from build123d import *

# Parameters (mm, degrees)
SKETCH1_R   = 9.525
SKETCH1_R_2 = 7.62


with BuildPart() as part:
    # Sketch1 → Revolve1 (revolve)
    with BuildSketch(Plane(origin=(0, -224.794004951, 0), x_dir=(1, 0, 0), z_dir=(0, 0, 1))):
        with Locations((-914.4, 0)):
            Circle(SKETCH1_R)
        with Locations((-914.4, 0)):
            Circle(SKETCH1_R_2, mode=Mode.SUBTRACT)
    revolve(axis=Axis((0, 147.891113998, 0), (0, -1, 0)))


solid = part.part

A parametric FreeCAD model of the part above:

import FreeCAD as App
import Part
import Sketcher
Q = App.Units.Quantity

doc = App.newDocument("Part")
body = doc.addObject("PartDesign::Body", "Body")

# Sketch on XY plane
sketch1 = doc.addObject("Sketcher::SketchObject", "Sketch")
body.addObject(sketch1)
sketch1.AttachmentSupport = (doc.XY_Plane, [""])
sketch1.MapMode = "FlatFace"
sketch1.addGeometry(Part.Circle(App.Vector(-914, -225, 0), App.Vector(0, 0, 1), 10), False)
sketch1.addGeometry(Part.Circle(App.Vector(-914, -225, 0), App.Vector(0, 0, 1), 8), False)
sketch1.addConstraint(Sketcher.Constraint("Coincident", 1, 3, 0, 3))
sketch1.addConstraint(Sketcher.Constraint("Diameter", 1, Q("0.6 in")))
sketch1.addConstraint(Sketcher.Constraint("Diameter", 0, Q("0.75 in")))
sketch1.addConstraint(Sketcher.Constraint("DistanceX", 0, 3, -1, 1, Q("36 in")))
sketch1.addConstraint(Sketcher.Constraint("DistanceY", 0, 3, -1, 1, Q("224.794005 mm")))
revolution = doc.addObject("PartDesign::Revolution", "Revolution")
body.addObject(revolution)
revolution.Profile = sketch1
revolution.ReferenceAxis = (sketch1, ["V_Axis"])
revolution.Angle = 360

doc.recompute()
